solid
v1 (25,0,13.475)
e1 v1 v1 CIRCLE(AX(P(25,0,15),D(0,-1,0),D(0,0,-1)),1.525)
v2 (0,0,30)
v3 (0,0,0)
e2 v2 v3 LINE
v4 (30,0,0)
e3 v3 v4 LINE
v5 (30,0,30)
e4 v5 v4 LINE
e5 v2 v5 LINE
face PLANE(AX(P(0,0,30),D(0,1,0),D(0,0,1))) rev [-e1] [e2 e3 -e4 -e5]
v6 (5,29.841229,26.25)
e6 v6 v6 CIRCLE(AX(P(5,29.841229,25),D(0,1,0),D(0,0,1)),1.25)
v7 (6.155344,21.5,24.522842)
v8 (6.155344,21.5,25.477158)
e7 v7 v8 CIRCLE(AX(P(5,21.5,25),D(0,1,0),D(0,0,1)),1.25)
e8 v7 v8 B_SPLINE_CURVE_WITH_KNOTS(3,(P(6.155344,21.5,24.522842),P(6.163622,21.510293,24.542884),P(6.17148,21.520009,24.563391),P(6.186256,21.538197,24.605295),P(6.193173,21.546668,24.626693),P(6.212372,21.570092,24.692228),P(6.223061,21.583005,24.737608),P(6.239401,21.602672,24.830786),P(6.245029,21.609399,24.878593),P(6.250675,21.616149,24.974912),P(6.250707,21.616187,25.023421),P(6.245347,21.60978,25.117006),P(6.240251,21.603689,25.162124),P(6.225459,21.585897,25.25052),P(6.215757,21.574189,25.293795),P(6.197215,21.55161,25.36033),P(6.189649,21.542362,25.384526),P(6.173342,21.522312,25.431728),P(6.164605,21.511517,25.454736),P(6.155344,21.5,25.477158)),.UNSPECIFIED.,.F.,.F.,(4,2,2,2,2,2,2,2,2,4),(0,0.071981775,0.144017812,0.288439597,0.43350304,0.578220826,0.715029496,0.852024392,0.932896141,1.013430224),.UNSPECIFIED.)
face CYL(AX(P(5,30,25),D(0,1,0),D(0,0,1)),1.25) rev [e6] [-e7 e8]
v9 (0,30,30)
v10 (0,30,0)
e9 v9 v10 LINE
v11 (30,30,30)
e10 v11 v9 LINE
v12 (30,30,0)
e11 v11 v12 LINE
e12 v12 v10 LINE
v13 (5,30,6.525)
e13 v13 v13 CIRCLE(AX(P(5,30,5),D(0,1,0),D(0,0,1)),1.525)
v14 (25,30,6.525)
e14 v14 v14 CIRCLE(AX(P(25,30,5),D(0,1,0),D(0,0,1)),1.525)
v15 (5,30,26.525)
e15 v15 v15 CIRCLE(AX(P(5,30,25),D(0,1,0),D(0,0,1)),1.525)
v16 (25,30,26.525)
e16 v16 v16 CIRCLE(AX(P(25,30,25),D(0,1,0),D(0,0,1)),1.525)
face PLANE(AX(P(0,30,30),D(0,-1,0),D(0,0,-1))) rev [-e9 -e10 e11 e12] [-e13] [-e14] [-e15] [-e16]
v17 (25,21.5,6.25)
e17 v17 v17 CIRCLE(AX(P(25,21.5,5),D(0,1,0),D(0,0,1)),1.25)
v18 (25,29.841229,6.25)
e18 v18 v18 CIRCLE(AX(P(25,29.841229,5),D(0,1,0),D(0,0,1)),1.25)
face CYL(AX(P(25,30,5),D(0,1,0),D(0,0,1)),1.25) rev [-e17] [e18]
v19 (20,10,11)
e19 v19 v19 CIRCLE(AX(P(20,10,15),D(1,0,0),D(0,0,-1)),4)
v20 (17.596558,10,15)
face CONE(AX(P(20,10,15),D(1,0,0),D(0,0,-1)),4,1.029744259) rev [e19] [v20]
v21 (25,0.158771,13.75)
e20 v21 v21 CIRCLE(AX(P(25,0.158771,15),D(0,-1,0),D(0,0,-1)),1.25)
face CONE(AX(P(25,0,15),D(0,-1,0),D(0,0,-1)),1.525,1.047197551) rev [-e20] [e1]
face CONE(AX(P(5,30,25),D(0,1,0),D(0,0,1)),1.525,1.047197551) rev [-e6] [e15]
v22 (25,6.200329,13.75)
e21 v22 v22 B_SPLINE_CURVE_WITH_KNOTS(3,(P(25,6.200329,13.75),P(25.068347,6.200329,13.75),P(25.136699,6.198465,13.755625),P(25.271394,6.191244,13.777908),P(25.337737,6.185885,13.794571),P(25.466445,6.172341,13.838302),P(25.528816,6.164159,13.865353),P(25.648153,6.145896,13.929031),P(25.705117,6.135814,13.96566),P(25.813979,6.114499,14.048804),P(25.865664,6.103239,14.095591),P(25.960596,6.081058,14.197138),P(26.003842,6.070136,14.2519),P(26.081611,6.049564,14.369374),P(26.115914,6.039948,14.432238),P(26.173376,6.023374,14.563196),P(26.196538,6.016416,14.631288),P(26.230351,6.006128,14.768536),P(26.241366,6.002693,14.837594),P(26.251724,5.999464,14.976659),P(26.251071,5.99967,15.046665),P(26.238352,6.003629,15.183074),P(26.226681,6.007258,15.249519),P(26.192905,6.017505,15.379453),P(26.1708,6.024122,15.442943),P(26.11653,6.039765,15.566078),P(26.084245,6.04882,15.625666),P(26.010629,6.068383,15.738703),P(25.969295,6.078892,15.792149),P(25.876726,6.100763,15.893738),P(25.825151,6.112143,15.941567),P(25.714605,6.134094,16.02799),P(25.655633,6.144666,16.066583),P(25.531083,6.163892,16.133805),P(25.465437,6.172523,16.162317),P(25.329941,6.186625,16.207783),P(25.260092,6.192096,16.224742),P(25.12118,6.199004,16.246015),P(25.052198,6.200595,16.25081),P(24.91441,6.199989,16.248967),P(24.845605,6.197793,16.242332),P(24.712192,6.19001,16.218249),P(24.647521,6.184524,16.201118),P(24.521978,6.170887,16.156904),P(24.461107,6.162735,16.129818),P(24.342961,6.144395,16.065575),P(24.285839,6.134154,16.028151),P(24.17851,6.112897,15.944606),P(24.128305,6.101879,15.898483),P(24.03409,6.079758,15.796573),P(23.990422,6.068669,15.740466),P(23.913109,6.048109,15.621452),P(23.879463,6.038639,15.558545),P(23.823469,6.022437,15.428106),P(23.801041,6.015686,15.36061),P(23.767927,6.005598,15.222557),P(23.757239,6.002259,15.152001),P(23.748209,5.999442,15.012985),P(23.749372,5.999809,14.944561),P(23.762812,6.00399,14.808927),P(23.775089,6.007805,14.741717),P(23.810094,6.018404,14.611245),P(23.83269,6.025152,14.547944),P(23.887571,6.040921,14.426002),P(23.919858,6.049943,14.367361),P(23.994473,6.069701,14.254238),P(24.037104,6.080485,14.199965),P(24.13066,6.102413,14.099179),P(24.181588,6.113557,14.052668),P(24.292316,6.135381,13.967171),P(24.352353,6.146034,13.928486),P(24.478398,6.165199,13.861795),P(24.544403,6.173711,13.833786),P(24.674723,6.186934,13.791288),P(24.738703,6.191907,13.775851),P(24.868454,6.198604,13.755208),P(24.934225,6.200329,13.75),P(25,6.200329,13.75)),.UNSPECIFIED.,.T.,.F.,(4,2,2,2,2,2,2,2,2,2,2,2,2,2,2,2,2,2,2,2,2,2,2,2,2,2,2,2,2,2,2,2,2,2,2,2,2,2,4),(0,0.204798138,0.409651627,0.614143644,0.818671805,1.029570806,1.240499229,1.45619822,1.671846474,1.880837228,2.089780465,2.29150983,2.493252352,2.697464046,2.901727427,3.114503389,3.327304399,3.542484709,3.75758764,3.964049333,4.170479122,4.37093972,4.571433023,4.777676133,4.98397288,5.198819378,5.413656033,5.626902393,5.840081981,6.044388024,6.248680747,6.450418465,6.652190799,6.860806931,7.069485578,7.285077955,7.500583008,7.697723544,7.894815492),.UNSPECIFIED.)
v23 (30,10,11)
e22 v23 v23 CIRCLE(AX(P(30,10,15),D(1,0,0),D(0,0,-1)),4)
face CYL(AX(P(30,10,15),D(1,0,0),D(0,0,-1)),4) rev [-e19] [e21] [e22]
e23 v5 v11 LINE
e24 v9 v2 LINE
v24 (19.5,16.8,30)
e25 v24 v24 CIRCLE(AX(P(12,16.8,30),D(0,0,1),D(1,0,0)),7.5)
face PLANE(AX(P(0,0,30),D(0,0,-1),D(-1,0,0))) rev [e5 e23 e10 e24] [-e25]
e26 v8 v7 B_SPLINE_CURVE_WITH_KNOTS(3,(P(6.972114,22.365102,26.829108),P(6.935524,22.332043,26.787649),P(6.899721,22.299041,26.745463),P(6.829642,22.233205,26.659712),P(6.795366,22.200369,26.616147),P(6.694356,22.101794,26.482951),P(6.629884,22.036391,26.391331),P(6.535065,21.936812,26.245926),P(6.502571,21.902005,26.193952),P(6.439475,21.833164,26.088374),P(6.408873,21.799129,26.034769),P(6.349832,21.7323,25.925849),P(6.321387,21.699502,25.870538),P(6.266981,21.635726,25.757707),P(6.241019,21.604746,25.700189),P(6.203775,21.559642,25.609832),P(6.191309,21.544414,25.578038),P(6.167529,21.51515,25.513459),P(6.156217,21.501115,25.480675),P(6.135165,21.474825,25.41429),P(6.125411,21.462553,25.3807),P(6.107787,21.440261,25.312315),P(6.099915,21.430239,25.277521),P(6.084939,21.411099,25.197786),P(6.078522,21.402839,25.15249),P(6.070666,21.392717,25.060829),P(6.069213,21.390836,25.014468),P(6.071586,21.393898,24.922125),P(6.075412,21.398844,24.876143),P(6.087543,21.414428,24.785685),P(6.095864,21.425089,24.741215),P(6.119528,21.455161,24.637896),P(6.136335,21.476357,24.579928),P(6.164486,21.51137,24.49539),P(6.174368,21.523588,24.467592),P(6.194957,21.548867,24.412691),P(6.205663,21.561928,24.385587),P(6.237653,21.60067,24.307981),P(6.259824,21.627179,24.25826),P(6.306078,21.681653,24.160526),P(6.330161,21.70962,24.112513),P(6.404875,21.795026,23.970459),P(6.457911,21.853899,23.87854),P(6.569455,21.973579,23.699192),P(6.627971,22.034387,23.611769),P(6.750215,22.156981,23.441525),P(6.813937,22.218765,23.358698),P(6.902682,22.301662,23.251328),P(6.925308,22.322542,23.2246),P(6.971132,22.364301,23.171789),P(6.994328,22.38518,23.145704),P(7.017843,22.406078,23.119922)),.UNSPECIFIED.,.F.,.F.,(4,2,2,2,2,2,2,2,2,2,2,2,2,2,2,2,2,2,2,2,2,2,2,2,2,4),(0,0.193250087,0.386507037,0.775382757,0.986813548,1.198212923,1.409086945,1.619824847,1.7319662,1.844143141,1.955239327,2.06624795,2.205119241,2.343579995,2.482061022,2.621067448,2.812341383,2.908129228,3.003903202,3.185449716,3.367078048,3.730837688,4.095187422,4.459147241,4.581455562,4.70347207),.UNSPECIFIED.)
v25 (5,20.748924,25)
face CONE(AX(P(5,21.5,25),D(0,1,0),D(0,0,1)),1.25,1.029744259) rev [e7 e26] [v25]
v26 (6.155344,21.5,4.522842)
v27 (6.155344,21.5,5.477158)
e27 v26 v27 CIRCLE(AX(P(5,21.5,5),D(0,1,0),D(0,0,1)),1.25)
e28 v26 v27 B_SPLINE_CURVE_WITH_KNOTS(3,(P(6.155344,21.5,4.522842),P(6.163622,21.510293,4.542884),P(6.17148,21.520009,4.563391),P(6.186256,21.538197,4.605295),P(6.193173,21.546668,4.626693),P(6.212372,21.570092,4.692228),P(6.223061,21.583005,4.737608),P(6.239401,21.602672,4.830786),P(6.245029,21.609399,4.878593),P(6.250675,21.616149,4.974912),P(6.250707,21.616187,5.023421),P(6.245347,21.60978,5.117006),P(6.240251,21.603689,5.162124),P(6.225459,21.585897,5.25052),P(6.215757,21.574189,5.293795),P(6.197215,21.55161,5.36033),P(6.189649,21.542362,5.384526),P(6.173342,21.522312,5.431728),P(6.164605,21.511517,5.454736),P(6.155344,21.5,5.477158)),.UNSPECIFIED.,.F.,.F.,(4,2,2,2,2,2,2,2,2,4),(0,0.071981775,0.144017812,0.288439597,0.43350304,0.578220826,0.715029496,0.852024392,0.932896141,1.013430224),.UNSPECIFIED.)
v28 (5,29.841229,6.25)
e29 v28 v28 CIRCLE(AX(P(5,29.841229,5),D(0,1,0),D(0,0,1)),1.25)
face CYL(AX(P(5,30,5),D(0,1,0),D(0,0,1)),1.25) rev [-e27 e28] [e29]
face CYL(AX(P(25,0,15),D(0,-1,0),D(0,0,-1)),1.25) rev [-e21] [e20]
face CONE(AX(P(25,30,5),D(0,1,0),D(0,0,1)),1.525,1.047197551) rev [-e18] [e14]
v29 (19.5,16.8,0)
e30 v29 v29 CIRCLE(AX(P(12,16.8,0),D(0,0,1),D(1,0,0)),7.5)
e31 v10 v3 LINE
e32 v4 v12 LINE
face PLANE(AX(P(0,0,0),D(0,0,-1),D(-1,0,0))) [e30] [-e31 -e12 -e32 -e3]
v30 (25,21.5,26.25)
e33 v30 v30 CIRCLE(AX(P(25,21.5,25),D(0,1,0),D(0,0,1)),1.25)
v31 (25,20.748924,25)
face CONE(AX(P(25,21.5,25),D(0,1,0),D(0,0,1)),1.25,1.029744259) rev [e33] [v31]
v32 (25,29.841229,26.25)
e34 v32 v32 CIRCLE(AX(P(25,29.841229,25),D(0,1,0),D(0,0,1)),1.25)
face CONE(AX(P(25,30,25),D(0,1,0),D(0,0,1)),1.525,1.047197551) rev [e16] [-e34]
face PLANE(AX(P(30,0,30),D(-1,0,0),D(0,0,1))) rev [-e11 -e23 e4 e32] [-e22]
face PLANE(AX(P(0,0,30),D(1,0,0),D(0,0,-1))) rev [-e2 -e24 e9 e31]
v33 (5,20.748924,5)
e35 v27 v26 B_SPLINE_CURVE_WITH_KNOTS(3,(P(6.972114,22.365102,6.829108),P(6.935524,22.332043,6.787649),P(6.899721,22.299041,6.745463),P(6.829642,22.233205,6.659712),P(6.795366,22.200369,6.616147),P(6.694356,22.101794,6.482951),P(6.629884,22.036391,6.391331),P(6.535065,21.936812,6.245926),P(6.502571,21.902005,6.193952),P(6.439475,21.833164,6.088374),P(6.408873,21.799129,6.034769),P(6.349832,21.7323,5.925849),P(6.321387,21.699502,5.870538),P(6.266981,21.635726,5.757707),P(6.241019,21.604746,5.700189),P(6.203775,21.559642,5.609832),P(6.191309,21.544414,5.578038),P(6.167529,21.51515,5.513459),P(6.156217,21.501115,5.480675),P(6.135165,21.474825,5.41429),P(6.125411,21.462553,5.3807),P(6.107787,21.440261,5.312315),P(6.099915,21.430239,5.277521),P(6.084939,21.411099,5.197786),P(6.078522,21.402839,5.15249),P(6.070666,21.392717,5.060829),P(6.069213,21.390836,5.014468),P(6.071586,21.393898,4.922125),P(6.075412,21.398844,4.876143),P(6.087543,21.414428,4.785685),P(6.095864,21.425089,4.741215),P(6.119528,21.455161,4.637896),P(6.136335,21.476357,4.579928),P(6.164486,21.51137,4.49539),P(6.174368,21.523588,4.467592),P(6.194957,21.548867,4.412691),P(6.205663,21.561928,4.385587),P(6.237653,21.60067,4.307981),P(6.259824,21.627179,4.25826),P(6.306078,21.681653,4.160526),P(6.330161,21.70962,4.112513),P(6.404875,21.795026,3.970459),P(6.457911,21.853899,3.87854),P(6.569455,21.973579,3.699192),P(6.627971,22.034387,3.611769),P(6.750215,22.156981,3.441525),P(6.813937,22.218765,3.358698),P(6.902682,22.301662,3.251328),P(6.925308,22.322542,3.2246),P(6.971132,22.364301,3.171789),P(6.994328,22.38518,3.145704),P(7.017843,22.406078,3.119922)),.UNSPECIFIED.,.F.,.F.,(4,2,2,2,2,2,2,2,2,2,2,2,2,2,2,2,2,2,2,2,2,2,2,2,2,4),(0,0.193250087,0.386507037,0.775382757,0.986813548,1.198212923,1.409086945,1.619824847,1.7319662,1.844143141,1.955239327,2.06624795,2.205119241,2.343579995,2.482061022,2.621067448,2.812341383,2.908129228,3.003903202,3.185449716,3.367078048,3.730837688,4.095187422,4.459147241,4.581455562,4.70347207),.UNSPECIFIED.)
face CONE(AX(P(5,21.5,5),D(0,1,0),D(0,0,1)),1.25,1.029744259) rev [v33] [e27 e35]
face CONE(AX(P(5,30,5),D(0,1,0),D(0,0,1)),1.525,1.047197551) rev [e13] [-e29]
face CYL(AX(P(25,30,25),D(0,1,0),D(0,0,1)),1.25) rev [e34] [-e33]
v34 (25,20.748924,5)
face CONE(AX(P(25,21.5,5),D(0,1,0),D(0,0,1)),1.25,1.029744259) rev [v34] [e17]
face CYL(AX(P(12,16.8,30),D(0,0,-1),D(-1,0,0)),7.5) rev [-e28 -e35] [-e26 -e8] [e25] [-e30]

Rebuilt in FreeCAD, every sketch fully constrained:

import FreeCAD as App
import Part
import Sketcher
Q = App.Units.Quantity


def add_polygon(sketch, points):
    """Adds a closed chain of lines whose ends are joined by coincident constraints."""
    first, n = sketch.GeometryCount, len(points)
    for a, b in zip(points, points[1:] + points[:1]):
        sketch.addGeometry(Part.LineSegment(App.Vector(*a, 0), App.Vector(*b, 0)), False)
    for i in range(n):
        sketch.addConstraint(Sketcher.Constraint("Coincident", first + i, 2, first + (i + 1) % n, 1))

doc = App.newDocument("Part")
body = doc.addObject("PartDesign::Body", "Body")

sketch1 = body.newObject("Sketcher::SketchObject", "Sketch")
sketch1.AttachmentSupport = (doc.getObject("XY_Plane"), [""])
sketch1.MapMode = "FlatFace"
add_polygon(sketch1, [(0, 30), (0, 0), (30, 0), (30, 30)])
sketch1.addGeometry(Part.Circle(App.Vector(12, 17, 0), App.Vector(0, 0, 1), 8), False)
sketch1.addConstraint([
    Sketcher.Constraint("Vertical", 0),
    Sketcher.Constraint("Horizontal", 1),
    Sketcher.Constraint("Vertical", 2),
    Sketcher.Constraint("Horizontal", 3),
    Sketcher.Constraint("Coincident", 0, 2, -1, 1),
    Sketcher.Constraint("Equal", 3, 0),
    Sketcher.Constraint("Diameter", 4, 15.0),
    Sketcher.Constraint("DistanceX", 1, 1, 1, 2, 30.0),
    Sketcher.Constraint("DistanceX", -1, 1, 4, 3, 12.0),
    Sketcher.Constraint("DistanceY", -1, 1, 4, 3, 16.8),
])
pad1 = body.newObject("PartDesign::Pad", "Pad")
pad1.Profile = sketch1
pad1.Length = 30

sketch2 = body.newObject("Sketcher::SketchObject", "Sketch001")
sketch2.AttachmentSupport = (doc.getObject("YZ_Plane"), [""])
sketch2.MapMode = "FlatFace"
sketch2.AttachmentOffset = App.Placement(App.Vector(0, 0, 30), App.Rotation())
sketch2.addGeometry(Part.Circle(App.Vector(10, 15, 0), App.Vector(0, 0, 1), 4), False)
sketch2.addConstraint([
    Sketcher.Constraint("Diameter", 0, 8.0),
    Sketcher.Constraint("DistanceX", -1, 1, 0, 3, 10.0),
    Sketcher.Constraint("DistanceY", -1, 1, 0, 3, 15.0),
])
doc.recompute()
hole = body.newObject("PartDesign::Hole", "Hole")
hole.Profile = sketch2
hole.ThreadType = "None"
hole.Diameter = 8
hole.DepthType = "Dimension"
hole.Depth = 10
hole.DrillPoint = "Angled"
hole.DrillPointAngle = 118

sketch3 = body.newObject("Sketcher::SketchObject", "Sketch002")
sketch3.AttachmentSupport = (doc.getObject("YZ_Plane"), [""])
sketch3.MapMode = "FlatFace"
sketch3.AttachmentOffset = App.Placement(App.Vector(0, 0, 5), App.Rotation())
add_polygon(sketch3, [(20.75, 25), (30, 25), (30, 26.52), (29.84, 26.25), (21.5, 26.25)])
sketch3.addGeometry(Part.LineSegment(App.Vector(30, 25, 0), App.Vector(20.75, 25, 0)), True)
sketch3.addConstraint([
    Sketcher.Constraint("Horizontal", 0),
    Sketcher.Constraint("Vertical", 1),
    Sketcher.Constraint("Horizontal", 3),
    Sketcher.Constraint("Horizontal", 5),
    Sketcher.Constraint("Coincident", 5, 1, 0, 2),
    Sketcher.Constraint("Equal", 0, 5),
    Sketcher.Constraint("Angle", 2, Q("-120 deg")),
    Sketcher.Constraint("Angle", 4, Q("-121 deg")),
    Sketcher.Constraint("DistanceX", -1, 1, 0, 2, 30.0),
    Sketcher.Constraint("DistanceY", -1, 1, 0, 2, 25.0),
    Sketcher.Constraint("DistanceX", -1, 1, 3, 2, 21.5),
    Sketcher.Constraint("DistanceY", 1, 1, 1, 2, 1.525),
    Sketcher.Constraint("DistanceY", -1, 1, 2, 2, 26.25),
])
groove = body.newObject("PartDesign::Groove", "Groove")
groove.Profile = sketch3
groove.ReferenceAxis = (sketch3, ["Axis0"])
groove.Angle = 360
doc.recompute()

linearpattern = body.newObject("PartDesign::LinearPattern", "LinearPattern")
linearpattern.Originals = [groove]
linearpattern.Direction = (doc.getObject("X_Axis"), [""])
linearpattern.Mode = "offset"
linearpattern.Offset = 20
linearpattern.Occurrences = 2
body.Tip = linearpattern
doc.recompute()

datumplane = body.newObject("PartDesign::Plane", "DatumPlane")
datumplane.AttachmentSupport = (doc.getObject("XY_Plane"), [""])
datumplane.MapMode = "FlatFace"
datumplane.AttachmentOffset = App.Placement(App.Vector(0, 0, 15), App.Rotation())
mirrored = body.newObject("PartDesign::Mirrored", "Mirrored")
mirrored.Originals = [groove]
mirrored.MirrorPlane = (datumplane, [""])
body.Tip = mirrored

sketch4 = body.newObject("Sketcher::SketchObject", "Sketch003")
sketch4.AttachmentSupport = (doc.getObject("YZ_Plane"), [""])
sketch4.MapMode = "FlatFace"
sketch4.AttachmentOffset = App.Placement(App.Vector(0, 0, 25), App.Rotation())
add_polygon(sketch4, [(30, 5), (20.75, 5), (21.5, 3.75), (29.84, 3.75), (30, 3.48)])
sketch4.addGeometry(Part.LineSegment(App.Vector(20.75, 5, 0), App.Vector(30, 5, 0)), True)
sketch4.addConstraint([
    Sketcher.Constraint("Horizontal", 0),
    Sketcher.Constraint("Horizontal", 2),
    Sketcher.Constraint("Vertical", 4),
    Sketcher.Constraint("Horizontal", 5),
    Sketcher.Constraint("Coincident", 5, 1, 0, 2),
    Sketcher.Constraint("Vertical", 3, 2, 5, 2),
    Sketcher.Constraint("Angle", 1, Q("-59 deg")),
    Sketcher.Constraint("Angle", 3, Q("-60 deg")),
    Sketcher.Constraint("DistanceY", -1, 1, 0, 2, 5.0),
    Sketcher.Constraint("DistanceX", -1, 1, 3, 2, 30.0),
    Sketcher.Constraint("DistanceX", -1, 1, 1, 2, 21.5),
    Sketcher.Constraint("DistanceY", 4, 1, 4, 2, 1.525),
    Sketcher.Constraint("DistanceY", -1, 1, 1, 2, 3.75),
])
groove2 = body.newObject("PartDesign::Groove", "Groove001")
groove2.Profile = sketch4
groove2.ReferenceAxis = (sketch4, ["Axis0"])
groove2.Angle = 360

sketch5 = body.newObject("Sketcher::SketchObject", "Sketch004")
sketch5.AttachmentSupport = (doc.getObject("XZ_Plane"), [""])
sketch5.MapMode = "FlatFace"
sketch5.addGeometry(Part.Circle(App.Vector(25, 15, 0), App.Vector(0, 0, 1), 1.2), False)
sketch5.addConstraint([
    Sketcher.Constraint("Diameter", 0, 2.5),
    Sketcher.Constraint("DistanceX", -1, 1, 0, 3, 25.0),
    Sketcher.Constraint("DistanceY", -1, 1, 0, 3, 15.0),
])
doc.recompute()
hole2 = body.newObject("PartDesign::Hole", "Hole001")
hole2.Profile = sketch5
hole2.ThreadType = "None"
hole2.Diameter = 2.5
hole2.DepthType = "Dimension"
hole2.Depth = 8.5
hole2.DrillPoint = "Angled"
hole2.DrillPointAngle = 118
hole2.HoleCutType = "Countersink"
hole2.HoleCutDiameter = 3.05
hole2.HoleCutCountersinkAngle = 120

doc.recompute()
